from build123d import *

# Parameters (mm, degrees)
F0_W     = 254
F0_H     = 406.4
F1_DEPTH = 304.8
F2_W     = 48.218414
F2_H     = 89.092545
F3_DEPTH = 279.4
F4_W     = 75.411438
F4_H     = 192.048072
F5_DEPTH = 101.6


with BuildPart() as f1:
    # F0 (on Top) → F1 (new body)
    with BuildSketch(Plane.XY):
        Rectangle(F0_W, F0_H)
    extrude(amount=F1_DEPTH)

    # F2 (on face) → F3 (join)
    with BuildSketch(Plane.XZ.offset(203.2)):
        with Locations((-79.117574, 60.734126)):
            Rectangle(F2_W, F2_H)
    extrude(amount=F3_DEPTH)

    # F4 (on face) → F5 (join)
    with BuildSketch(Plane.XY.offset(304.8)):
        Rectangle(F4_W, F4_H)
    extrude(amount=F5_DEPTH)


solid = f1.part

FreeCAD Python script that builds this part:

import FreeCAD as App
import Part
import Sketcher

V = App.Vector
Q = App.Units.Quantity


def add_polygon(sketch, points):
    """Adds a closed chain of lines whose ends are joined by coincident constraints."""
    first, n = sketch.GeometryCount, len(points)
    for a, b in zip(points, points[1:] + points[:1]):
        sketch.addGeometry(Part.LineSegment(App.Vector(*a, 0), App.Vector(*b, 0)), False)
    for i in range(n):
        sketch.addConstraint(Sketcher.Constraint("Coincident", first + i, 2, first + (i + 1) % n, 1))

doc = App.newDocument("Part")
body = doc.addObject("PartDesign::Body", "Body")

# Sketch on XY plane
sketch1 = body.newObject("Sketcher::SketchObject", "Sketch")
sketch1.AttachmentSupport = (doc.getObject("XY_Plane"), [""])
sketch1.MapMode = "FlatFace"
add_polygon(sketch1, [(-127, 203), (-127, -203), (127, -203), (127, 203)])  # lines 0-3
sketch1.addConstraint([
    Sketcher.Constraint("Vertical", 0),
    Sketcher.Constraint("Horizontal", 1),
    Sketcher.Constraint("Vertical", 2),
    Sketcher.Constraint("Horizontal", 3),
    Sketcher.Constraint("Symmetric", 0, 2, 2, 2, -1, 1),
    Sketcher.Constraint("DistanceX", 1, 1, 1, 2, Q("10 in")),
    Sketcher.Constraint("DistanceY", 0, 2, 0, 1, Q("16 in")),
])
pad1 = body.newObject("PartDesign::Pad", "Pad")
pad1.Profile = sketch1
pad1.Length = Q("12 in")

# Sketch on XZ plane
sketch2 = body.newObject("Sketcher::SketchObject", "Sketch001")
sketch2.AttachmentSupport = (doc.getObject("XZ_Plane"), [""])
sketch2.MapMode = "FlatFace"
sketch2.AttachmentOffset = App.Placement(V(0, 0, 8 * 25.4), App.Rotation())
add_polygon(sketch2, [(-103, 105), (-103, 16), (-55, 16), (-55, 105)])  # lines 0-3
sketch2.addConstraint([
    Sketcher.Constraint("Vertical", 0),
    Sketcher.Constraint("Horizontal", 1),
    Sketcher.Constraint("Vertical", 2),
    Sketcher.Constraint("Horizontal", 3),
    Sketcher.Constraint("DistanceY", -1, 1, 2, 2, Q("105.280399 mm")),
    Sketcher.Constraint("DistanceX", 1, 1, 1, 2, Q("48.218414 mm")),
    Sketcher.Constraint("DistanceY", 0, 2, 0, 1, Q("89.092545 mm")),
    Sketcher.Constraint("DistanceX", 0, 2, -1, 1, Q("103.226781 mm")),
])
pad2 = body.newObject("PartDesign::Pad", "Pad001")
pad2.Profile = sketch2
pad2.Length = Q("11 in")

# Sketch on XY plane
sketch3 = body.newObject("Sketcher::SketchObject", "Sketch002")
sketch3.AttachmentSupport = (doc.getObject("XY_Plane"), [""])
sketch3.MapMode = "FlatFace"
sketch3.AttachmentOffset = App.Placement(V(0, 0, 12 * 25.4), App.Rotation())
add_polygon(sketch3, [(-38, 96), (-38, -96), (38, -96), (38, 96)])  # lines 0-3
sketch3.addConstraint([
    Sketcher.Constraint("Vertical", 0),
    Sketcher.Constraint("Horizontal", 1),
    Sketcher.Constraint("Vertical", 2),
    Sketcher.Constraint("Horizontal", 3),
    Sketcher.Constraint("Symmetric", 0, 2, 2, 2, -1, 1),
    Sketcher.Constraint("DistanceX", 1, 1, 1, 2, Q("75.411438 mm")),
    Sketcher.Constraint("DistanceY", 0, 2, 0, 1, Q("192.048072 mm")),
])
pad3 = body.newObject("PartDesign::Pad", "Pad002")
pad3.Profile = sketch3
pad3.Length = Q("4 in")

doc.recompute()
